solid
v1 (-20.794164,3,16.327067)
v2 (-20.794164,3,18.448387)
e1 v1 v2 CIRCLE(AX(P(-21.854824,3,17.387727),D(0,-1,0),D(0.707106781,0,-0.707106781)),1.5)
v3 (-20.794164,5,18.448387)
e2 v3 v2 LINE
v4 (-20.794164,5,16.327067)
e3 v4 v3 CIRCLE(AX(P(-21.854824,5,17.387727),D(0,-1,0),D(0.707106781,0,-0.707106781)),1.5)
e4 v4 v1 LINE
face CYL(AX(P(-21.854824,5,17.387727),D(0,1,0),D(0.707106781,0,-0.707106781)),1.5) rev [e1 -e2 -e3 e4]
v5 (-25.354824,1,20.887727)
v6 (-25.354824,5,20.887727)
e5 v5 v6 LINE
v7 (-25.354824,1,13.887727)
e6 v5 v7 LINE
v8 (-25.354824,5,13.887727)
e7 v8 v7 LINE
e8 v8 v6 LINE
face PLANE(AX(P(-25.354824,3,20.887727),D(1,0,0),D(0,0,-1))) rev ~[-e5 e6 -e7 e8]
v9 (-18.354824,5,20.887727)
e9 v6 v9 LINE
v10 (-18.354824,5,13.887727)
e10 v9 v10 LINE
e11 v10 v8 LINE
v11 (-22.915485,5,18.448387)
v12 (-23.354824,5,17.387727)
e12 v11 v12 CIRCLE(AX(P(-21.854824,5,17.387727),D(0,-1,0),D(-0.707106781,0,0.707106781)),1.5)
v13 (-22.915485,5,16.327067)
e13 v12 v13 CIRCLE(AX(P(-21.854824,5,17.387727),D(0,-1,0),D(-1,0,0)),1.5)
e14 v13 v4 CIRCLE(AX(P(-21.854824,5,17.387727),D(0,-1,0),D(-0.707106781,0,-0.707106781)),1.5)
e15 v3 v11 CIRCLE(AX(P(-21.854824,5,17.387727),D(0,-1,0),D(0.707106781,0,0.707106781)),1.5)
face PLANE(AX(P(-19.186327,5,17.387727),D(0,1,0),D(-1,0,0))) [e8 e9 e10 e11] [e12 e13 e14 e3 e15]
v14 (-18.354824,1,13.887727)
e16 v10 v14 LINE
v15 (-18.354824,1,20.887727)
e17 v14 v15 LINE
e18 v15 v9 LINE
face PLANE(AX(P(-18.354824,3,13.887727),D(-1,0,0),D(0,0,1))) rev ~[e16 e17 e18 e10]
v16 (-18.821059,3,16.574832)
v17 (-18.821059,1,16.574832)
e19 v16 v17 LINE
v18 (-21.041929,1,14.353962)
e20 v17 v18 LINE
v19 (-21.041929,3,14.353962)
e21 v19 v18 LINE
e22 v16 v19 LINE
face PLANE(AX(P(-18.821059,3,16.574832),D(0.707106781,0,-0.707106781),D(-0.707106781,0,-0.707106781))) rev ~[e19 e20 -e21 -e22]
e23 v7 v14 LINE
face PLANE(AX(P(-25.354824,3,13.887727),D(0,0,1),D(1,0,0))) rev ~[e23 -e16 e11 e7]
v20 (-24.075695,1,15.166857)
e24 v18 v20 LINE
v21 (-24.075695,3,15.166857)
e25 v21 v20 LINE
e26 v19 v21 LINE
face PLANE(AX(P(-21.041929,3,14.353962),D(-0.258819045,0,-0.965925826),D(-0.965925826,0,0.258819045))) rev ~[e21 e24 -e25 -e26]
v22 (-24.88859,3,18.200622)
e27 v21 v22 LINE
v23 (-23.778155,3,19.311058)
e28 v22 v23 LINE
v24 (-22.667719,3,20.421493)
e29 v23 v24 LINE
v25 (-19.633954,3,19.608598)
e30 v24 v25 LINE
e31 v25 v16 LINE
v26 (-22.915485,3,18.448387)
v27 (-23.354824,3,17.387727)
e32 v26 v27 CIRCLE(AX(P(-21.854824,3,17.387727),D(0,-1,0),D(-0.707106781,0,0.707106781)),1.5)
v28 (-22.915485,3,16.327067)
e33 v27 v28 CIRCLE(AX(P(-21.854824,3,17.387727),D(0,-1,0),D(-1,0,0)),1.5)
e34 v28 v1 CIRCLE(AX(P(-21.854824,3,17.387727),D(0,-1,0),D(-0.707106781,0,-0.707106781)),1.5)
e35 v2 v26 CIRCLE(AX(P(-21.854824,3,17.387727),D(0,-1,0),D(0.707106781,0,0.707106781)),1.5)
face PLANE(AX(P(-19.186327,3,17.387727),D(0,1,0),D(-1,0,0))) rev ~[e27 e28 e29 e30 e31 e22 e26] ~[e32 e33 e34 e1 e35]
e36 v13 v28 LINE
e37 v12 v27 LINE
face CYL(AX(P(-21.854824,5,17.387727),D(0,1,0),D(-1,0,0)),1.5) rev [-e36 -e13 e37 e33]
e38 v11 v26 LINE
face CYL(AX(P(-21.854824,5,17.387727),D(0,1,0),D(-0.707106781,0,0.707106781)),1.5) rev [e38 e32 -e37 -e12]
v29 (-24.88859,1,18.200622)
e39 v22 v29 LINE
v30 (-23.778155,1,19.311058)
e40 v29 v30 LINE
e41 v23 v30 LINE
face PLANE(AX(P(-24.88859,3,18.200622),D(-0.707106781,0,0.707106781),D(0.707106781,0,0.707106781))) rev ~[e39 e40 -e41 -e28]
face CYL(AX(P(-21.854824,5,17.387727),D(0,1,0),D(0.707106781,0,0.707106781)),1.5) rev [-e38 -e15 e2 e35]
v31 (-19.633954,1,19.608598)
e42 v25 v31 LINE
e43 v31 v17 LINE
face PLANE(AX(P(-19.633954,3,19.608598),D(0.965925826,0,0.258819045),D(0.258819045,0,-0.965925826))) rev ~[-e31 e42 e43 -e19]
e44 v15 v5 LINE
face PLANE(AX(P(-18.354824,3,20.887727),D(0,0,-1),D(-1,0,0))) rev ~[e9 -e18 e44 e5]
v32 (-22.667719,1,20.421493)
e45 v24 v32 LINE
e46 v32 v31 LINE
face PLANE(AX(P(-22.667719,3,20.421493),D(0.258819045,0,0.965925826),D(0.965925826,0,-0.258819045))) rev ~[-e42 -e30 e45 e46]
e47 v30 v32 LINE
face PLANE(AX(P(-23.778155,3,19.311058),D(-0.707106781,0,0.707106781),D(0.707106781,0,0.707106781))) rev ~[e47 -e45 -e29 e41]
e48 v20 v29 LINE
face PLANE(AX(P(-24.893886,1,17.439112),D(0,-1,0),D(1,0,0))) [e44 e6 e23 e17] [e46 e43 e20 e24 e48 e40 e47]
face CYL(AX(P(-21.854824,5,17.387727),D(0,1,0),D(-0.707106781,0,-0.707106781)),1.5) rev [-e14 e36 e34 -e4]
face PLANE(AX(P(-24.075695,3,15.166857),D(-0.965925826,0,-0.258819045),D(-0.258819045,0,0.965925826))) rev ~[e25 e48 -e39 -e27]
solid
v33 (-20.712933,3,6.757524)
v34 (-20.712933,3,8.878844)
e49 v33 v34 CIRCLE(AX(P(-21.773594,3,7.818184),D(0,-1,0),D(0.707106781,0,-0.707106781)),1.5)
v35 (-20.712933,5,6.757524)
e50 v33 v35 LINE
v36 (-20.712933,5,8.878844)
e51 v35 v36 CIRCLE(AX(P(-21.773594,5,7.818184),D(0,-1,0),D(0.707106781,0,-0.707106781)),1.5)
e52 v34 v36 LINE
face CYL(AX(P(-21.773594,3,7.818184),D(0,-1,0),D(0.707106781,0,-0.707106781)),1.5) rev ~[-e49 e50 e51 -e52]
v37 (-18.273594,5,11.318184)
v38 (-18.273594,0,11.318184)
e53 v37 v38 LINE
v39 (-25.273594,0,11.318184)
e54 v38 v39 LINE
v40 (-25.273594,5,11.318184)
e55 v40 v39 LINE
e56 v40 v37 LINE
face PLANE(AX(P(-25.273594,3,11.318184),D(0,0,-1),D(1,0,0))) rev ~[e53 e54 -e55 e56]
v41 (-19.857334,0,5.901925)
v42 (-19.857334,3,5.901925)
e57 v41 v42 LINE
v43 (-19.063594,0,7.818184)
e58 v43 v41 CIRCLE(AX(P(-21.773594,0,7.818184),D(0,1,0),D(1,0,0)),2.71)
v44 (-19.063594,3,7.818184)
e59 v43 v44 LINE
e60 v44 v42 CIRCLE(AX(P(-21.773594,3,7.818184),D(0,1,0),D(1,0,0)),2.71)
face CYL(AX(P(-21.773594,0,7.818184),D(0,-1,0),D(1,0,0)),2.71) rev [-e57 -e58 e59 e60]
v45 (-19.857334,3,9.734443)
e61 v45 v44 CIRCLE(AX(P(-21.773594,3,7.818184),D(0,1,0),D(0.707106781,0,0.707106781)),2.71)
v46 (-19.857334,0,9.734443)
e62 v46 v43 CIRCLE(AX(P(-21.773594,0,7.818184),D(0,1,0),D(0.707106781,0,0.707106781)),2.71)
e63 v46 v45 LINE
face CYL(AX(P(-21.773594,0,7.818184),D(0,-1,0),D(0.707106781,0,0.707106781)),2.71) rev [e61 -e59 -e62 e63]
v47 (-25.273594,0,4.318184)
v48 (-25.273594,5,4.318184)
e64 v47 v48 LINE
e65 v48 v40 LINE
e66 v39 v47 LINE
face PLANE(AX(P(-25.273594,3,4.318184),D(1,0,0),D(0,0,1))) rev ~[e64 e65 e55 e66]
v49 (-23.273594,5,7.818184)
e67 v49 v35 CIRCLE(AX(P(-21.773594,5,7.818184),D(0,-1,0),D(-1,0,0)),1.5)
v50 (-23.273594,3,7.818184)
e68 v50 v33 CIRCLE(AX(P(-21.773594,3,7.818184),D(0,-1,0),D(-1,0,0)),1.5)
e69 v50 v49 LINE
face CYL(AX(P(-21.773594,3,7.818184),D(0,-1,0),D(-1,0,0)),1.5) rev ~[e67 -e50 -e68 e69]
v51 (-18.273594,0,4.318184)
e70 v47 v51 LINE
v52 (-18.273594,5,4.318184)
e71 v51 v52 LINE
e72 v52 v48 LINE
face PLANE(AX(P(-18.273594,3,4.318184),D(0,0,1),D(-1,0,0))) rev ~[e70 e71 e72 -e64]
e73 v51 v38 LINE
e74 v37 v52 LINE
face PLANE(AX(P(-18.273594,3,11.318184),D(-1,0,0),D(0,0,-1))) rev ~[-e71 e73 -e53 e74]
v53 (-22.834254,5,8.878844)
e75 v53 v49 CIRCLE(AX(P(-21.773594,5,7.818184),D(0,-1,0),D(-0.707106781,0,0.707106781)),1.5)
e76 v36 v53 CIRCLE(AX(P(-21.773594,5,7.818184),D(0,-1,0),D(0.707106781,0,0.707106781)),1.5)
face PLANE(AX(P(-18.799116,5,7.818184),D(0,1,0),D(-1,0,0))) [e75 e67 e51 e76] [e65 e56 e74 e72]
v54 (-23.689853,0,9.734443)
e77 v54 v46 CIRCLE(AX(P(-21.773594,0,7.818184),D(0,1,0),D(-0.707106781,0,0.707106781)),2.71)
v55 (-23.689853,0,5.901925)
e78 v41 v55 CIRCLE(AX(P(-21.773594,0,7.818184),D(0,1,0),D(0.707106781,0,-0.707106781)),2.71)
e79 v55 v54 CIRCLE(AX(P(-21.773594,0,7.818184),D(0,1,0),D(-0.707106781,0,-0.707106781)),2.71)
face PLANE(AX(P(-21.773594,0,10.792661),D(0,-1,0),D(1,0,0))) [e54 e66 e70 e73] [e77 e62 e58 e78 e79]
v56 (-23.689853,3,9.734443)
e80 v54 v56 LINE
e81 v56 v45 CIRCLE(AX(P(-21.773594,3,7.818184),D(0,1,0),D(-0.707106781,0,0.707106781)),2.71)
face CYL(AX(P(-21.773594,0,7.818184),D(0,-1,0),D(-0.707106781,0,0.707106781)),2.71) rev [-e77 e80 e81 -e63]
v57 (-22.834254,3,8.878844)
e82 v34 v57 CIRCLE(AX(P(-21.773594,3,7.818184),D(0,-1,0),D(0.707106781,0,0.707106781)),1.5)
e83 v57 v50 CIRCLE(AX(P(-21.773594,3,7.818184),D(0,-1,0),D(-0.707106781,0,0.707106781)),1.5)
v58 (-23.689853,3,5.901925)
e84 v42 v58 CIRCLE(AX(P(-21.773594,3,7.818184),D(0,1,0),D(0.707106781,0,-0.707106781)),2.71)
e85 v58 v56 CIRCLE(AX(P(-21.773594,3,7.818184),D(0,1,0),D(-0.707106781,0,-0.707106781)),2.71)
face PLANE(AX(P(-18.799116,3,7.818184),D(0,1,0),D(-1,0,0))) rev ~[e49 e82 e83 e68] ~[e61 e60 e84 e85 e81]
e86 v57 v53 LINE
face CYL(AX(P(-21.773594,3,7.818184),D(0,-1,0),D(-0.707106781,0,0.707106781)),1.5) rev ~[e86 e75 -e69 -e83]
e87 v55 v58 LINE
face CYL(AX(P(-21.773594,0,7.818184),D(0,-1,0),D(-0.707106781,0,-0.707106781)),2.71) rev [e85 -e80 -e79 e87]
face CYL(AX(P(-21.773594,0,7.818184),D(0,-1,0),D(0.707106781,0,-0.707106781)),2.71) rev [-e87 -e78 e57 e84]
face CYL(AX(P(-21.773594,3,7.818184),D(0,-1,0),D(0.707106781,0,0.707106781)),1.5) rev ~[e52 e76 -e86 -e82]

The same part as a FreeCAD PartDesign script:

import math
import FreeCAD as App
import Part
import Sketcher
from FreeCAD import Vector
Q = App.Units.Quantity


def add_polygon(sketch, points):
    """Adds a closed chain of lines whose ends are joined by coincident constraints."""
    first, n = sketch.GeometryCount, len(points)
    for a, b in zip(points, points[1:] + points[:1]):
        sketch.addGeometry(Part.LineSegment(App.Vector(*a, 0), App.Vector(*b, 0)), False)
    for i in range(n):
        sketch.addConstraint(Sketcher.Constraint("Coincident", first + i, 2, first + (i + 1) % n, 1))

doc = App.newDocument("Part")
params = doc.addObject("Spreadsheet::Sheet", "Params")
for row, (alias, value) in enumerate([
    ("sketch1_width", "7 mm"),
    ("sketch1_radius", "2.71 mm"),
    ("pad1_length", "3 mm"),
    ("sketch2_radius", "1.5 mm"),
    ("sketch2_width", "7 mm"),
    ("pad2_length", "2 mm"),
    ("sketch3_radius", "1.5 mm"),
    ("sketch3_width", "7 mm"),
    ("pad3_length", "2 mm"),
    ("sketch4_width", "7 mm"),
    ("pad4_length", "2 mm"),
], start=1):
    params.set(f"A{row}", alias)
    params.set(f"B{row}", "=" + value)
    params.setAlias(f"B{row}", alias)

body = doc.addObject("PartDesign::Body", "Body")

# Sketch on XZ plane
sketch1 = body.newObject("Sketcher::SketchObject", "Sketch")
sketch1.AttachmentSupport = (doc.getObject("XZ_Plane"), [""])
sketch1.MapMode = "FlatFace"
add_polygon(sketch1, [(-18.3, 11.3), (-25.3, 11.3), (-25.3, 4.3), (-18.3, 4.3)])  # lines 0-3
sketch1.addGeometry(Part.ArcOfCircle(Part.Circle(Vector(-21.8, 7.8, 0), Vector(0, 0, 1), 2.7), math.radians(-135), math.radians(-45)), False)  # 4
sketch1.addGeometry(Part.ArcOfCircle(Part.Circle(Vector(-21.8, 7.8, 0), Vector(0, 0, 1), 2.7), math.radians(135), math.radians(225)), False)  # 5
sketch1.addGeometry(Part.ArcOfCircle(Part.Circle(Vector(-21.8, 7.8, 0), Vector(0, 0, 1), 2.7), math.radians(45), math.radians(135)), False)  # 6
sketch1.addGeometry(Part.ArcOfCircle(Part.Circle(Vector(-21.8, 7.8, 0), Vector(0, 0, 1), 2.7), math.radians(0), math.radians(45)), False)  # 7
sketch1.addGeometry(Part.ArcOfCircle(Part.Circle(Vector(-21.8, 7.8, 0), Vector(0, 0, 1), 2.7), math.radians(-45), math.radians(0)), False)  # 8
sketch1.addConstraint(Sketcher.Constraint("Tangent", 4, 1, 5, 2))
sketch1.addConstraint(Sketcher.Constraint("Tangent", 5, 1, 6, 2))
sketch1.addConstraint(Sketcher.Constraint("Tangent", 6, 1, 7, 2))
sketch1.addConstraint(Sketcher.Constraint("Tangent", 7, 1, 8, 2))
sketch1.addConstraint(Sketcher.Constraint("Tangent", 8, 1, 4, 2))
sketch1.addConstraint(Sketcher.Constraint("Horizontal", 0))
sketch1.addConstraint(Sketcher.Constraint("Vertical", 1))
sketch1.addConstraint(Sketcher.Constraint("Horizontal", 2))
sketch1.addConstraint(Sketcher.Constraint("Vertical", 3))
sketch1.addConstraint(Sketcher.Constraint("Coincident", 6, 3, 4, 3))
sketch1.addConstraint(Sketcher.Constraint("Horizontal", 5, 1, 6, 1))
sketch1.addConstraint(Sketcher.Constraint("Horizontal", 8, 3, 7, 1))
sketch1.addConstraint(Sketcher.Constraint("Horizontal", 4, 1, 8, 1))
sketch1.addConstraint(Sketcher.Constraint("Vertical", 4, 1, 5, 1))
sketch1.addConstraint(Sketcher.Constraint("Equal", 2, 1))
sketch1.addConstraint(Sketcher.Constraint("DistanceX", 0, 2, 0, 1, Q("7 mm")))
sketch1.addConstraint(Sketcher.Constraint("Radius", 4, Q("2.71 mm")))
sketch1.addConstraint(Sketcher.Constraint("DistanceX", 0, 2, 7, 3, Q("3.5 mm")))
sketch1.addConstraint(Sketcher.Constraint("DistanceY", 7, 3, 0, 2, Q("3.5 mm")))
sketch1.addConstraint(Sketcher.Constraint("DistanceX", 1, 2, 4, 1, Q("1.583741 mm")))
sketch1.addConstraint(Sketcher.Constraint("DistanceX", 4, 3, -1, 1, Q("21.773594 mm")))
sketch1.addConstraint(Sketcher.Constraint("DistanceY", -1, 1, 4, 3, Q("7.818184 mm")))
sketch1.setExpression("Constraints[19]", "Params.sketch1_width")
sketch1.setExpression("Constraints[20]", "Params.sketch1_radius")
pad1 = body.newObject("PartDesign::Pad", "Pad")
pad1.Profile = sketch1
pad1.setExpression("Length", "Params.pad1_length")
pad1.Reversed = True

# Sketch on XZ plane
sketch2 = body.newObject("Sketcher::SketchObject", "Sketch001")
sketch2.AttachmentSupport = (doc.getObject("XZ_Plane"), [""])
sketch2.MapMode = "FlatFace"
sketch2.AttachmentOffset = App.Placement(Vector(0, 0, -3), App.Rotation())
add_polygon(sketch2, [(-18.3, 11.3), (-18.3, 4.3), (-25.3, 4.3), (-25.3, 11.3)])  # lines 0-3
sketch2.addGeometry(Part.ArcOfCircle(Part.Circle(Vector(-21.8, 7.8, 0), Vector(0, 0, 1), 1.5), math.radians(135), math.radians(180)), False)  # 4
sketch2.addGeometry(Part.ArcOfCircle(Part.Circle(Vector(-21.8, 7.8, 0), Vector(0, 0, 1), 1.5), math.radians(180), math.radians(315)), False)  # 5
sketch2.addGeometry(Part.ArcOfCircle(Part.Circle(Vector(-21.8, 7.8, 0), Vector(0, 0, 1), 1.5), math.radians(-45), math.radians(45)), False)  # 6
sketch2.addGeometry(Part.ArcOfCircle(Part.Circle(Vector(-21.8, 7.8, 0), Vector(0, 0, 1), 1.5), math.radians(45), math.radians(135)), False)  # 7
sketch2.addConstraint(Sketcher.Constraint("Tangent", 4, 2, 5, 1))
sketch2.addConstraint(Sketcher.Constraint("Tangent", 5, 2, 6, 1))
sketch2.addConstraint(Sketcher.Constraint("Tangent", 6, 2, 7, 1))
sketch2.addConstraint(Sketcher.Constraint("Tangent", 7, 2, 4, 1))
sketch2.addConstraint(Sketcher.Constraint("Vertical", 0))
sketch2.addConstraint(Sketcher.Constraint("Horizontal", 1))
sketch2.addConstraint(Sketcher.Constraint("Vertical", 2))
sketch2.addConstraint(Sketcher.Constraint("Horizontal", 3))
sketch2.addConstraint(Sketcher.Constraint("Equal", 4, 5))
sketch2.addConstraint(Sketcher.Constraint("Horizontal", 7, 3, 4, 2))
sketch2.addConstraint(Sketcher.Constraint("Horizontal", 6, 2, 7, 2))
sketch2.addConstraint(Sketcher.Constraint("Vertical", 5, 2, 6, 2))
sketch2.addConstraint(Sketcher.Constraint("Equal", 3, 0))
sketch2.addConstraint(Sketcher.Constraint("Radius", 4, Q("1.5 mm")))
sketch2.addConstraint(Sketcher.Constraint("DistanceX", 1, 2, 1, 1, Q("7 mm")))
sketch2.addConstraint(Sketcher.Constraint("DistanceX", 1, 2, 4, 2, Q("2 mm")))
sketch2.addConstraint(Sketcher.Constraint("DistanceY", 0, 2, 4, 3, Q("3.5 mm")))
sketch2.addConstraint(Sketcher.Constraint("DistanceX", 4, 3, 5, 2, Q("1.06066 mm")))
sketch2.addConstraint(Sketcher.Constraint("DistanceX", 4, 3, -1, 1, Q("21.773594 mm")))
sketch2.addConstraint(Sketcher.Constraint("DistanceY", -1, 1, 4, 3, Q("7.818184 mm")))
sketch2.setExpression("Constraints[17]", "Params.sketch2_radius")
sketch2.setExpression("Constraints[18]", "Params.sketch2_width")
pad2 = body.newObject("PartDesign::Pad", "Pad001")
pad2.Profile = sketch2
pad2.setExpression("Length", "Params.pad2_length")
pad2.Reversed = True
body2 = doc.addObject("PartDesign::Body", "Body001")

# Sketch on XZ plane
sketch3 = body2.newObject("Sketcher::SketchObject", "Sketch002")
sketch3.AttachmentSupport = (doc.getObject("XZ_Plane001"), [""])
sketch3.MapMode = "FlatFace"
sketch3.AttachmentOffset = App.Placement(Vector(0, 0, -5), App.Rotation())
add_polygon(sketch3, [(-18.4, 20.9), (-18.4, 13.9), (-25.4, 13.9), (-25.4, 20.9)])  # lines 0-3
sketch3.addGeometry(Part.ArcOfCircle(Part.Circle(Vector(-21.9, 17.4, 0), Vector(0, 0, 1), 1.5), math.radians(135), math.radians(180)), False)  # 4
sketch3.addGeometry(Part.ArcOfCircle(Part.Circle(Vector(-21.9, 17.4, 0), Vector(0, 0, 1), 1.5), math.radians(180), math.radians(225)), False)  # 5
sketch3.addGeometry(Part.ArcOfCircle(Part.Circle(Vector(-21.9, 17.4, 0), Vector(0, 0, 1), 1.5), math.radians(-135), math.radians(-45)), False)  # 6
sketch3.addGeometry(Part.ArcOfCircle(Part.Circle(Vector(-21.9, 17.4, 0), Vector(0, 0, 1), 1.5), math.radians(-45), math.radians(45)), False)  # 7
sketch3.addGeometry(Part.ArcOfCircle(Part.Circle(Vector(-21.9, 17.4, 0), Vector(0, 0, 1), 1.5), math.radians(45), math.radians(135)), False)  # 8
sketch3.addConstraint(Sketcher.Constraint("Tangent", 4, 2, 5, 1))
sketch3.addConstraint(Sketcher.Constraint("Tangent", 5, 2, 6, 1))
sketch3.addConstraint(Sketcher.Constraint("Tangent", 6, 2, 7, 1))
sketch3.addConstraint(Sketcher.Constraint("Tangent", 7, 2, 8, 1))
sketch3.addConstraint(Sketcher.Constraint("Tangent", 8, 2, 4, 1))
sketch3.addConstraint(Sketcher.Constraint("Vertical", 0))
sketch3.addConstraint(Sketcher.Constraint("Horizontal", 1))
sketch3.addConstraint(Sketcher.Constraint("Vertical", 2))
sketch3.addConstraint(Sketcher.Constraint("Horizontal", 3))
sketch3.addConstraint(Sketcher.Constraint("Coincident", 6, 3, 4, 3))
sketch3.addConstraint(Sketcher.Constraint("Horizontal", 8, 3, 4, 2))
sketch3.addConstraint(Sketcher.Constraint("Horizontal", 5, 2, 6, 2))
sketch3.addConstraint(Sketcher.Constraint("Horizontal", 7, 2, 8, 2))
sketch3.addConstraint(Sketcher.Constraint("Vertical", 6, 2, 7, 2))
sketch3.addConstraint(Sketcher.Constraint("Equal", 3, 0))
sketch3.addConstraint(Sketcher.Constraint("Radius", 4, Q("1.5 mm")))
sketch3.addConstraint(Sketcher.Constraint("DistanceX", 1, 2, 1, 1, Q("7 mm")))
sketch3.addConstraint(Sketcher.Constraint("DistanceX", 5, 3, 0, 2, Q("3.5 mm")))
sketch3.addConstraint(Sketcher.Constraint("DistanceY", 0, 2, 5, 3, Q("3.5 mm")))
sketch3.addConstraint(Sketcher.Constraint("DistanceX", 4, 2, 5, 2, Q("0.43934 mm")))
sketch3.addConstraint(Sketcher.Constraint("DistanceX", 4, 3, -1, 1, Q("21.854824 mm")))
sketch3.addConstraint(Sketcher.Constraint("DistanceY", -1, 1, 4, 3, Q("17.387727 mm")))
sketch3.setExpression("Constraints[19]", "Params.sketch3_radius")
sketch3.setExpression("Constraints[20]", "Params.sketch3_width")
pad3 = body2.newObject("PartDesign::Pad", "Pad002")
pad3.Profile = sketch3
pad3.setExpression("Length", "Params.pad3_length")

# Sketch on XZ plane
sketch4 = body2.newObject("Sketcher::SketchObject", "Sketch003")
sketch4.AttachmentSupport = (doc.getObject("XZ_Plane001"), [""])
sketch4.MapMode = "FlatFace"
sketch4.AttachmentOffset = App.Placement(Vector(0, 0, -3), App.Rotation())
add_polygon(sketch4, [(-25.4, 20.9), (-25.4, 13.9), (-18.4, 13.9), (-18.4, 20.9)])  # lines 0-3
add_polygon(sketch4, [(-19.6, 19.6), (-18.8, 16.6), (-21, 14.4), (-24.1, 15.2), (-24.9, 18.2), (-23.8, 19.3), (-22.7, 20.4)])  # lines 4-10
sketch4.addConstraint(Sketcher.Constraint("Vertical", 0))
sketch4.addConstraint(Sketcher.Constraint("Horizontal", 1))
sketch4.addConstraint(Sketcher.Constraint("Vertical", 2))
sketch4.addConstraint(Sketcher.Constraint("Horizontal", 3))
sketch4.addConstraint(Sketcher.Constraint("Parallel", 4, 7))
sketch4.addConstraint(Sketcher.Constraint("Parallel", 5, 8))
sketch4.addConstraint(Sketcher.Constraint("Parallel", 8, 9))
sketch4.addConstraint(Sketcher.Constraint("Parallel", 6, 10))
sketch4.addConstraint(Sketcher.Constraint("Equal", 3, 0))
sketch4.addConstraint(Sketcher.Constraint("Equal", 4, 5))
sketch4.addConstraint(Sketcher.Constraint("Equal", 5, 6))
sketch4.addConstraint(Sketcher.Constraint("Equal", 6, 7))
sketch4.addConstraint(Sketcher.Constraint("Equal", 8, 9))
sketch4.addConstraint(Sketcher.Constraint("DistanceX", 1, 1, 1, 2, Q("7 mm")))
sketch4.addConstraint(Sketcher.Constraint("Angle", 4, Q("-75 deg")))
sketch4.addConstraint(Sketcher.Constraint("Angle", 5, Q("-135 deg")))
sketch4.addConstraint(Sketcher.Constraint("Angle", 6, Q("165 deg")))
sketch4.addConstraint(Sketcher.Constraint("DistanceY", -1, 1, 10, 2, Q("19.608598 mm")))
sketch4.addConstraint(Sketcher.Constraint("DistanceY", 6, 2, 8, 2, Q("4.144201 mm")))
sketch4.addConstraint(Sketcher.Constraint("DistanceX", 4, 2, -1, 1, Q("18.821059 mm")))
sketch4.addConstraint(Sketcher.Constraint("DistanceX", 0, 2, 6, 2, Q("1.279129 mm")))
sketch4.addConstraint(Sketcher.Constraint("DistanceY", 0, 2, 6, 2, Q("1.279129 mm")))
sketch4.setExpression("Constraints[24]", "Params.sketch4_width")
pad4 = body2.newObject("PartDesign::Pad", "Pad003")
pad4.Profile = sketch4
pad4.setExpression("Length", "Params.pad4_length")

doc.recompute()
